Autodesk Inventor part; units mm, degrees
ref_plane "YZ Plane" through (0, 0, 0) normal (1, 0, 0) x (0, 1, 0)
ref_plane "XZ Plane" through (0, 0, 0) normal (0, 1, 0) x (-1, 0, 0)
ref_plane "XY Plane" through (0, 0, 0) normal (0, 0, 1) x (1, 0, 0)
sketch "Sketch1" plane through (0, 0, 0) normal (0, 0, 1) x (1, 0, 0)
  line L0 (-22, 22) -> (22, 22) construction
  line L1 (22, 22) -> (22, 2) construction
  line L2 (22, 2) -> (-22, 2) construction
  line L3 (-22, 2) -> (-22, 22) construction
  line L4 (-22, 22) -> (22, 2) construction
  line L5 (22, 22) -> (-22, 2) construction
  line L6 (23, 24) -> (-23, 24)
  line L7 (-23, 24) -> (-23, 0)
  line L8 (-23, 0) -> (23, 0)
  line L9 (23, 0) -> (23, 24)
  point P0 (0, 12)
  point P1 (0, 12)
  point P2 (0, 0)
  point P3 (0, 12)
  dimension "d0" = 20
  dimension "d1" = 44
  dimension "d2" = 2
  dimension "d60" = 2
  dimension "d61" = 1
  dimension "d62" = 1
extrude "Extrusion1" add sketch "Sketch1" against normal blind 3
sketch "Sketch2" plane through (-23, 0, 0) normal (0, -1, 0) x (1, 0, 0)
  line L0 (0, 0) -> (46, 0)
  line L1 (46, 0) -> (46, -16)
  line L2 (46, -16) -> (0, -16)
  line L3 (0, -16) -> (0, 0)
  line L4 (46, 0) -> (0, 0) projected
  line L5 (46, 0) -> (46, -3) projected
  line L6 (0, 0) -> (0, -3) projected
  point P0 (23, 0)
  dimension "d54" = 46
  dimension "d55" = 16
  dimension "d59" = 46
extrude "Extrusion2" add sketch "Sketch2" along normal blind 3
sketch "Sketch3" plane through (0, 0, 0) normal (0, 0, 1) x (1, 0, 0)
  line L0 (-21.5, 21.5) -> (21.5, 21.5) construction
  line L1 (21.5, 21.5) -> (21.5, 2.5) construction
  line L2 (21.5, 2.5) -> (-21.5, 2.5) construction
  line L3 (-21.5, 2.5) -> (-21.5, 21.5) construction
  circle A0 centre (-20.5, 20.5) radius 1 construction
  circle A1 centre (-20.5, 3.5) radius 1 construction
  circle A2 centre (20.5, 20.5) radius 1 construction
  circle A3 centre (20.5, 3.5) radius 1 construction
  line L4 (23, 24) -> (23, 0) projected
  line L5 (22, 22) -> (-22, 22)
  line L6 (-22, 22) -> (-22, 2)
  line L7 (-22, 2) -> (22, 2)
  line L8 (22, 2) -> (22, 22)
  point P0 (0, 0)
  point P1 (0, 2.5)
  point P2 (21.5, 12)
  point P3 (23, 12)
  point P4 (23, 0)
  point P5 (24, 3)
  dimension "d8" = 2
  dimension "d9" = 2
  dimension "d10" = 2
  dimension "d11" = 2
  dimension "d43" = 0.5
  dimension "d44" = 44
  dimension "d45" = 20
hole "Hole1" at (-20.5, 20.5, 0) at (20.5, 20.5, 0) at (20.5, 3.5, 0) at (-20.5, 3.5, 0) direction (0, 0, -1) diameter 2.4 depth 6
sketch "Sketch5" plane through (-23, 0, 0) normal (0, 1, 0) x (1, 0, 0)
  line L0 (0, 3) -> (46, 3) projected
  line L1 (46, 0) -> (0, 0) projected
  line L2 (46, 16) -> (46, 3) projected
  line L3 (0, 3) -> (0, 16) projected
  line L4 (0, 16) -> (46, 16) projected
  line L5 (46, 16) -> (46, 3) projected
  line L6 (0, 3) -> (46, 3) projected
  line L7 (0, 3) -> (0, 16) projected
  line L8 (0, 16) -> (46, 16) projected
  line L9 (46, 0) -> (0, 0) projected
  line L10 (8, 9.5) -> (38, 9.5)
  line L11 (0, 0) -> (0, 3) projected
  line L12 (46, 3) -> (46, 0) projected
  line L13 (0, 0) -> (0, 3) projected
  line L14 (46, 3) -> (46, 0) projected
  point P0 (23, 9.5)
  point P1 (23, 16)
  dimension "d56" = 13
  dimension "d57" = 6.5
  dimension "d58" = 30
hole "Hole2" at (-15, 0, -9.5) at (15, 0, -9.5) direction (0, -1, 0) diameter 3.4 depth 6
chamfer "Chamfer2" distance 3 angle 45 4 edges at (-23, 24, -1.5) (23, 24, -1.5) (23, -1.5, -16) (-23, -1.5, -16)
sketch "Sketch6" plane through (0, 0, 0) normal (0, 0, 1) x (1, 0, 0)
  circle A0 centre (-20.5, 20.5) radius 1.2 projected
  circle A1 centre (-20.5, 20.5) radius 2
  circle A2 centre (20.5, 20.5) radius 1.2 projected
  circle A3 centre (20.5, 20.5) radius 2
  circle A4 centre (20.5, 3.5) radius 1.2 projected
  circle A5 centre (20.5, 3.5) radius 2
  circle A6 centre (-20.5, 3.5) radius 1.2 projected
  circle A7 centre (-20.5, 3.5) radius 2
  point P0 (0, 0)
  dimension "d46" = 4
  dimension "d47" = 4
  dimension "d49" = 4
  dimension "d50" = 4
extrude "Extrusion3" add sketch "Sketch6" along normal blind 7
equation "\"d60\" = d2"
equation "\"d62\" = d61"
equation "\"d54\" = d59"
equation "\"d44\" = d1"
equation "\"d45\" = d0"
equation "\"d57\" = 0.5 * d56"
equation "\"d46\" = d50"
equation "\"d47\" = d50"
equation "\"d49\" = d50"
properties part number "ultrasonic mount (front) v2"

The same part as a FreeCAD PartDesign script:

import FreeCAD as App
import Part
import Sketcher


def edges_at(feature, points):
    """Names of the edges that pass closest to the given points."""
    edges = feature.Shape.Edges
    near = lambda p: min(range(len(edges)), key=lambda i: edges[i].distToShape(Part.Vertex(*p))[0])
    return sorted({f"Edge{near(p) + 1}" for p in points})


def add_polygon(sketch, points):
    """Adds a closed chain of lines whose ends are joined by coincident constraints."""
    first, n = sketch.GeometryCount, len(points)
    for a, b in zip(points, points[1:] + points[:1]):
        sketch.addGeometry(Part.LineSegment(App.Vector(*a, 0), App.Vector(*b, 0)), False)
    for i in range(n):
        sketch.addConstraint(Sketcher.Constraint("Coincident", first + i, 2, first + (i + 1) % n, 1))

doc = App.newDocument("Part")
body = doc.addObject("PartDesign::Body", "Body")

# Sketch on XY plane
sketch1 = body.newObject("Sketcher::SketchObject", "Sketch")
sketch1.AttachmentSupport = (doc.getObject("XY_Plane"), [""])
sketch1.MapMode = "FlatFace"
add_polygon(sketch1, [(23, 0), (23, 24), (-23, 24), (-23, 0)])  # lines 0-3
sketch1.addConstraint(Sketcher.Constraint("Vertical", 0))
sketch1.addConstraint(Sketcher.Constraint("Horizontal", 1))
sketch1.addConstraint(Sketcher.Constraint("Vertical", 2))
sketch1.addConstraint(Sketcher.Constraint("Horizontal", 3))
sketch1.addConstraint(Sketcher.Constraint("Symmetric", 2, 2, 3, 2, -1, 1))
sketch1.addConstraint(Sketcher.Constraint("DistanceX", 1, 2, 1, 1, 46.0))
sketch1.addConstraint(Sketcher.Constraint("DistanceY", 0, 1, 0, 2, 24.0))
pad1 = body.newObject("PartDesign::Pad", "Pad")
pad1.Profile = sketch1
pad1.Length = 3
pad1.Reversed = True

# Sketch on XZ plane
sketch2 = body.newObject("Sketcher::SketchObject", "Sketch001")
sketch2.AttachmentSupport = (doc.getObject("XZ_Plane"), [""])
sketch2.MapMode = "FlatFace"
add_polygon(sketch2, [(23, 0), (-23, 0), (-23, -16), (23, -16)])  # lines 0-3
sketch2.addConstraint(Sketcher.Constraint("Horizontal", 0))
sketch2.addConstraint(Sketcher.Constraint("Vertical", 1))
sketch2.addConstraint(Sketcher.Constraint("Horizontal", 2))
sketch2.addConstraint(Sketcher.Constraint("Vertical", 3))
sketch2.addConstraint(Sketcher.Constraint("Symmetric", 0, 2, 3, 2, -1, 1))
sketch2.addConstraint(Sketcher.Constraint("DistanceX", 0, 2, 0, 1, 46.0))
sketch2.addConstraint(Sketcher.Constraint("DistanceY", 1, 2, 1, 1, 16.0))
pad2 = body.newObject("PartDesign::Pad", "Pad001")
pad2.Profile = sketch2
pad2.Length = 3

# Sketch on XY plane
sketch3 = body.newObject("Sketcher::SketchObject", "Sketch002")
sketch3.AttachmentSupport = (doc.getObject("XY_Plane"), [""])
sketch3.MapMode = "FlatFace"
sketch3.addGeometry(Part.Circle(App.Vector(-20.5, 20.5, 0), App.Vector(0, 0, 1), 1.2), False)
sketch3.addGeometry(Part.Circle(App.Vector(20.5, 20.5, 0), App.Vector(0, 0, 1), 1.2), False)
sketch3.addGeometry(Part.Circle(App.Vector(20.5, 3.5, 0), App.Vector(0, 0, 1), 1.2), False)
sketch3.addGeometry(Part.Circle(App.Vector(-20.5, 3.5, 0), App.Vector(0, 0, 1), 1.2), False)
sketch3.addConstraint(Sketcher.Constraint("Equal", 0, 1))
sketch3.addConstraint(Sketcher.Constraint("Equal", 1, 2))
sketch3.addConstraint(Sketcher.Constraint("Equal", 2, 3))
sketch3.addConstraint(Sketcher.Constraint("Symmetric", 0, 3, 1, 3, -2))
sketch3.addConstraint(Sketcher.Constraint("Symmetric", 2, 3, 3, 3, -2))
sketch3.addConstraint(Sketcher.Constraint("Vertical", 1, 3, 2, 3))
sketch3.addConstraint(Sketcher.Constraint("Diameter", 0, 2.4))
sketch3.addConstraint(Sketcher.Constraint("DistanceX", 0, 3, 1, 3, 41.0))
sketch3.addConstraint(Sketcher.Constraint("DistanceY", 2, 3, 1, 3, 17.0))
sketch3.addConstraint(Sketcher.Constraint("DistanceY", -1, 1, 0, 3, 20.5))
doc.recompute()
hole = body.newObject("PartDesign::Hole", "Hole")
hole.Profile = sketch3
hole.ThreadType = "None"
hole.Diameter = 2.4
hole.DepthType = "Dimension"
hole.Depth = 6
hole.DrillPoint = "Flat"

# Sketch on XZ plane
sketch4 = body.newObject("Sketcher::SketchObject", "Sketch003")
sketch4.AttachmentSupport = (doc.getObject("XZ_Plane"), [""])
sketch4.MapMode = "FlatFace"
sketch4.addGeometry(Part.Circle(App.Vector(-15, -9.5, 0), App.Vector(0, 0, 1), 1.7), False)
sketch4.addGeometry(Part.Circle(App.Vector(15, -9.5, 0), App.Vector(0, 0, 1), 1.7), False)
sketch4.addConstraint(Sketcher.Constraint("Equal", 0, 1))
sketch4.addConstraint(Sketcher.Constraint("Symmetric", 0, 3, 1, 3, -2))
sketch4.addConstraint(Sketcher.Constraint("Diameter", 0, 3.4))
sketch4.addConstraint(Sketcher.Constraint("DistanceX", 0, 3, -1, 1, 15.0))
sketch4.addConstraint(Sketcher.Constraint("DistanceY", 0, 3, -1, 1, 9.5))
doc.recompute()
hole2 = body.newObject("PartDesign::Hole", "Hole001")
hole2.Profile = sketch4
hole2.ThreadType = "None"
hole2.Diameter = 3.4
hole2.DepthType = "Dimension"
hole2.Depth = 6
hole2.DrillPoint = "Flat"
hole2.Reversed = True
doc.recompute()

chamfer = body.newObject("PartDesign::Chamfer", "Chamfer")
chamfer.Base = (hole2, edges_at(hole2, [
    (-23, 24, -1.5),
    (23, 24, -1.5),
    (23, -1.5, -16),
    (-23, -1.5, -16),
]))
chamfer.Size = 3

# Sketch on XY plane
sketch5 = body.newObject("Sketcher::SketchObject", "Sketch004")
sketch5.AttachmentSupport = (doc.getObject("XY_Plane"), [""])
sketch5.MapMode = "FlatFace"
sketch5.addGeometry(Part.Circle(App.Vector(-20.5, 20.5, 0), App.Vector(0, 0, 1), 2), False)
sketch5.addGeometry(Part.Circle(App.Vector(-20.5, 20.5, 0), App.Vector(0, 0, 1), 1.2), False)
sketch5.addGeometry(Part.Circle(App.Vector(20.5, 20.5, 0), App.Vector(0, 0, 1), 2), False)
sketch5.addGeometry(Part.Circle(App.Vector(20.5, 20.5, 0), App.Vector(0, 0, 1), 1.2), False)
sketch5.addGeometry(Part.Circle(App.Vector(20.5, 3.5, 0), App.Vector(0, 0, 1), 2), False)
sketch5.addGeometry(Part.Circle(App.Vector(20.5, 3.5, 0), App.Vector(0, 0, 1), 1.2), False)
sketch5.addGeometry(Part.Circle(App.Vector(-20.5, 3.5, 0), App.Vector(0, 0, 1), 2), False)
sketch5.addGeometry(Part.Circle(App.Vector(-20.5, 3.5, 0), App.Vector(0, 0, 1), 1.2), False)
sketch5.addConstraint(Sketcher.Constraint("Coincident", 1, 3, 0, 3))
sketch5.addConstraint(Sketcher.Constraint("Coincident", 3, 3, 2, 3))
sketch5.addConstraint(Sketcher.Constraint("Coincident", 5, 3, 4, 3))
sketch5.addConstraint(Sketcher.Constraint("Coincident", 7, 3, 6, 3))
sketch5.addConstraint(Sketcher.Constraint("Equal", 0, 2))
sketch5.addConstraint(Sketcher.Constraint("Equal", 1, 3))
sketch5.addConstraint(Sketcher.Constraint("Equal", 2, 4))
sketch5.addConstraint(Sketcher.Constraint("Equal", 3, 5))
sketch5.addConstraint(Sketcher.Constraint("Equal", 4, 6))
sketch5.addConstraint(Sketcher.Constraint("Equal", 5, 7))
sketch5.addConstraint(Sketcher.Constraint("Symmetric", 0, 3, 2, 3, -2))
sketch5.addConstraint(Sketcher.Constraint("Symmetric", 4, 3, 6, 3, -2))
sketch5.addConstraint(Sketcher.Constraint("Vertical", 3, 3, 4, 3))
sketch5.addConstraint(Sketcher.Constraint("Diameter", 0, 4.0))
sketch5.addConstraint(Sketcher.Constraint("Diameter", 1, 2.4))
sketch5.addConstraint(Sketcher.Constraint("DistanceX", 0, 3, 2, 3, 41.0))
sketch5.addConstraint(Sketcher.Constraint("DistanceY", 4, 3, 2, 3, 17.0))
sketch5.addConstraint(Sketcher.Constraint("DistanceY", -1, 1, 0, 3, 20.5))
pad3 = body.newObject("PartDesign::Pad", "Pad002")
pad3.Profile = sketch5
pad3.Length = 7

doc.recompute()
